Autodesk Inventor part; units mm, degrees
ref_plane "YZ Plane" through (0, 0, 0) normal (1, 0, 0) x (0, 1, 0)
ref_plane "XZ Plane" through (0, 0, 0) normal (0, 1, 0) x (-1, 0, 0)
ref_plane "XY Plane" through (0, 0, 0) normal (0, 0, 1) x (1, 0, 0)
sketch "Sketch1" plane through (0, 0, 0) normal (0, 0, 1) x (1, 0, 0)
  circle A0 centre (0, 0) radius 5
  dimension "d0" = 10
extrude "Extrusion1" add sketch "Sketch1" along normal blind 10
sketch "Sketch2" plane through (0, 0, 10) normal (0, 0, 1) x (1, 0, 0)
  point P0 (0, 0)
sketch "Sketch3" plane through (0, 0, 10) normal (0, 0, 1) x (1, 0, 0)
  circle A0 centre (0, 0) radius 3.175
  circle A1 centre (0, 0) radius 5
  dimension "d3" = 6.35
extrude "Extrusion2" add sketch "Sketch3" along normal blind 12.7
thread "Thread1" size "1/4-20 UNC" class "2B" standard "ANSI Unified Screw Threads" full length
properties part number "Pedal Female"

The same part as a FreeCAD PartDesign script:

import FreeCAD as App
import Part
import Sketcher
Q = App.Units.Quantity

doc = App.newDocument("Part")
body = doc.addObject("PartDesign::Body", "Body")

# Sketch on XY plane
sketch1 = body.newObject("Sketcher::SketchObject", "Sketch")
sketch1.AttachmentSupport = (doc.getObject("XY_Plane"), [""])
sketch1.MapMode = "FlatFace"
sketch1.addGeometry(Part.Circle(App.Vector(0, 0, 0), App.Vector(0, 0, 1), 5), False)
sketch1.addConstraint([
    Sketcher.Constraint("Coincident", 0, 3, -1, 1),
    Sketcher.Constraint("Diameter", 0, Q("0.3937 in")),
])
pad1 = body.newObject("PartDesign::Pad", "Pad")
pad1.Profile = sketch1
pad1.Length = Q("0.3937008 in")

# Sketch on XY plane
sketch2 = body.newObject("Sketcher::SketchObject", "Sketch001")
sketch2.AttachmentSupport = (doc.getObject("XY_Plane"), [""])
sketch2.MapMode = "FlatFace"
sketch2.AttachmentOffset = App.Placement(App.Vector(0, 0, 0.3937008 * 25.4), App.Rotation())
sketch2.addGeometry([
    Part.Circle(App.Vector(0, 0, 0), App.Vector(0, 0, 1), 5),
    Part.Circle(App.Vector(0, 0, 0), App.Vector(0, 0, 1), 3.175),
], False)
sketch2.addConstraint([
    Sketcher.Constraint("Coincident", 0, 3, -1, 1),
    Sketcher.Constraint("Coincident", 1, 3, -1, 1),
    Sketcher.Constraint("Diameter", 1, Q("0.25 in")),
    Sketcher.Constraint("Diameter", 0, Q("0.3937 in")),
])
pad2 = body.newObject("PartDesign::Pad", "Pad001")
pad2.Profile = sketch2
pad2.Length = Q("0.5 in")

doc.recompute()
